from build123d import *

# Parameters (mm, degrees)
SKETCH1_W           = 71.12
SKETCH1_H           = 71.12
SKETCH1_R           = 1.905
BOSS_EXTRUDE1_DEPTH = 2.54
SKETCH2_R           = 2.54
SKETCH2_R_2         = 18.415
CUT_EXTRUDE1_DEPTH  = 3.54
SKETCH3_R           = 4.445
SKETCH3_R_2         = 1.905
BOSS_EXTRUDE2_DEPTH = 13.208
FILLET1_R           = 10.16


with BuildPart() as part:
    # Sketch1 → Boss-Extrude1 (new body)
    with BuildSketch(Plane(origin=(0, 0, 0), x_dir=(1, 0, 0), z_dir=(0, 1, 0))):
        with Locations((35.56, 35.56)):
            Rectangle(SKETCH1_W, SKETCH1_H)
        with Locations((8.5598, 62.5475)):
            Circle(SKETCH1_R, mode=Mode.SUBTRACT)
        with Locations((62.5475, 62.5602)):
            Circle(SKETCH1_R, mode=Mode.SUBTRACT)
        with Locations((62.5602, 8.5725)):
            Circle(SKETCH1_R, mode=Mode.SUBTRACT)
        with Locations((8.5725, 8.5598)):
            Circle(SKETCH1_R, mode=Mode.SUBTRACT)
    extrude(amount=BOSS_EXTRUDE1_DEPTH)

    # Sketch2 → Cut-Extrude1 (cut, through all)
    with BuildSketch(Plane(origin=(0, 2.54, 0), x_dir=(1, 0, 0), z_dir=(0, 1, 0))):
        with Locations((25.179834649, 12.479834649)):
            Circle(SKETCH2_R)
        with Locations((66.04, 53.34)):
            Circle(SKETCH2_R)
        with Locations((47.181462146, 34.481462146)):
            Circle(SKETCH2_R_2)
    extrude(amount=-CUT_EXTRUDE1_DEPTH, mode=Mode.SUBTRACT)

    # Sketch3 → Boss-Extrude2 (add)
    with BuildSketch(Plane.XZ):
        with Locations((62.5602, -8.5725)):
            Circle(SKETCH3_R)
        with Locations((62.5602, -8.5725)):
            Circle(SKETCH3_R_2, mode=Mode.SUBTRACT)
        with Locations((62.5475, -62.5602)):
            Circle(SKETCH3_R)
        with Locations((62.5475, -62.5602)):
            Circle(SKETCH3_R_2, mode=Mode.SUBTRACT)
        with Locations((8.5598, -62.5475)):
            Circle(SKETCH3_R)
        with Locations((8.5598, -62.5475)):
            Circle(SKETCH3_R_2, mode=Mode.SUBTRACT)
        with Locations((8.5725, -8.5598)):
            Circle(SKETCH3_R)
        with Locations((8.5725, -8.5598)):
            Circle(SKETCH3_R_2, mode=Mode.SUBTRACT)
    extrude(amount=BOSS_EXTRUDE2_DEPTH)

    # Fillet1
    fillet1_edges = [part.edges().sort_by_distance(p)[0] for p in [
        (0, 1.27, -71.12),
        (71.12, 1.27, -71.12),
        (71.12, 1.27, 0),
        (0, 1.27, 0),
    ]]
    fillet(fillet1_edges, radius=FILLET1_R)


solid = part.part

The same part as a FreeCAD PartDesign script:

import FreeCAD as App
import Part
import Sketcher
from FreeCAD import Vector
Q = App.Units.Quantity


def edges_at(feature, points):
    """Names of the edges that pass closest to the given points."""
    edges = feature.Shape.Edges
    near = lambda p: min(range(len(edges)), key=lambda i: edges[i].distToShape(Part.Vertex(*p))[0])
    return sorted({f"Edge{near(p) + 1}" for p in points})


def add_polygon(sketch, points):
    """Adds a closed chain of lines whose ends are joined by coincident constraints."""
    first, n = sketch.GeometryCount, len(points)
    for a, b in zip(points, points[1:] + points[:1]):
        sketch.addGeometry(Part.LineSegment(App.Vector(*a, 0), App.Vector(*b, 0)), False)
    for i in range(n):
        sketch.addConstraint(Sketcher.Constraint("Coincident", first + i, 2, first + (i + 1) % n, 1))

doc = App.newDocument("Part")
body = doc.addObject("PartDesign::Body", "Body")

# Sketch on XZ plane
sketch1 = doc.addObject("Sketcher::SketchObject", "Sketch")
body.addObject(sketch1)
sketch1.AttachmentSupport = (doc.XZ_Plane, [""])
sketch1.MapMode = "FlatFace"
add_polygon(sketch1, [(0, -71.1), (0, 0), (71.1, 0), (71.1, -71.1)])  # lines 0-3
sketch1.addGeometry(Part.Circle(Vector(8.6, -8.6, 0), Vector(0, 0, 1), 1.9), False)  # 4
sketch1.addGeometry(Part.Circle(Vector(62.6, -8.6, 0), Vector(0, 0, 1), 1.9), False)  # 5
sketch1.addGeometry(Part.Circle(Vector(8.6, -62.5, 0), Vector(0, 0, 1), 1.9), False)  # 6
sketch1.addGeometry(Part.Circle(Vector(62.5, -62.6, 0), Vector(0, 0, 1), 1.9), False)  # 7
sketch1.addConstraint([
    Sketcher.Constraint("Vertical", 0),
    Sketcher.Constraint("Horizontal", 1),
    Sketcher.Constraint("Vertical", 2),
    Sketcher.Constraint("Horizontal", 3),
    Sketcher.Constraint("Coincident", 0, 2, -1, 1),
    Sketcher.Constraint("Equal", 4, 5),
    Sketcher.Constraint("Equal", 5, 6),
    Sketcher.Constraint("Equal", 6, 7),
    Sketcher.Constraint("Equal", 3, 0),
    Sketcher.Constraint("Diameter", 4, Q("0.15 in")),
    Sketcher.Constraint("DistanceX", 1, 1, 1, 2, Q("2.8 in")),
    Sketcher.Constraint("DistanceY", 4, 3, -1, 1, Q("0.337 in")),
    Sketcher.Constraint("DistanceX", -1, 1, 5, 3, Q("2.463 in")),
    Sketcher.Constraint("DistanceX", -1, 1, 6, 3, Q("0.337 in")),
    Sketcher.Constraint("DistanceY", 7, 3, -1, 1, Q("2.463 in")),
    Sketcher.Constraint("DistanceY", 6, 3, 5, 3, Q("2.125 in")),
    Sketcher.Constraint("DistanceX", 4, 3, 7, 3, Q("2.125 in")),
    Sketcher.Constraint("DistanceX", -1, 1, 4, 3, Q("0.3375 in")),
    Sketcher.Constraint("DistanceY", 5, 3, -1, 1, Q("0.3375 in")),
])
pad1 = doc.addObject("PartDesign::Pad", "Pad")
body.addObject(pad1)
pad1.Profile = sketch1
pad1.Length = Q("0.1 in")
pad1.Reversed = True

# Sketch on XZ plane
sketch2 = doc.addObject("Sketcher::SketchObject", "Sketch001")
body.addObject(sketch2)
sketch2.AttachmentSupport = (doc.XZ_Plane, [""])
sketch2.MapMode = "FlatFace"
sketch2.AttachmentOffset = App.Placement(Vector(0, 0, -0.1 * 25.4), App.Rotation())
sketch2.addGeometry([
    Part.Circle(Vector(25.2, -12.5, 0), Vector(0, 0, 1), 2.5),
    Part.Circle(Vector(66, -53.3, 0), Vector(0, 0, 1), 2.5),
    Part.Circle(Vector(47.2, -34.5, 0), Vector(0, 0, 1), 18.4),
], False)
sketch2.addConstraint([
    Sketcher.Constraint("Equal", 0, 1),
    Sketcher.Constraint("Diameter", 0, Q("0.2 in")),
    Sketcher.Constraint("Diameter", 2, Q("1.45 in")),
    Sketcher.Constraint("DistanceX", -1, 1, 1, 3, Q("2.6 in")),
    Sketcher.Constraint("DistanceY", 1, 3, -1, 1, Q("2.1 in")),
    Sketcher.Constraint("DistanceX", -1, 1, 0, 3, 25.179835),
    Sketcher.Constraint("DistanceY", 0, 3, -1, 1, 12.479835),
    Sketcher.Constraint("DistanceX", -1, 1, 2, 3, 47.181462),
    Sketcher.Constraint("DistanceY", 2, 3, -1, 1, 34.481462),
])
pocket1 = doc.addObject("PartDesign::Pocket", "Pocket")
body.addObject(pocket1)
pocket1.Profile = sketch2
pocket1.Type = "ThroughAll"
pocket1.Reversed = True

# Sketch on XZ plane
sketch3 = doc.addObject("Sketcher::SketchObject", "Sketch002")
body.addObject(sketch3)
sketch3.AttachmentSupport = (doc.XZ_Plane, [""])
sketch3.MapMode = "FlatFace"
sketch3.addGeometry([
    Part.Circle(Vector(62.6, -8.6, 0), Vector(0, 0, 1), 4.4),  # 0
    Part.Circle(Vector(62.6, -8.6, 0), Vector(0, 0, 1), 1.9),  # 1
    Part.Circle(Vector(62.5, -62.6, 0), Vector(0, 0, 1), 4.4),  # 2
    Part.Circle(Vector(62.5, -62.6, 0), Vector(0, 0, 1), 1.9),  # 3
    Part.Circle(Vector(8.6, -62.5, 0), Vector(0, 0, 1), 4.4),  # 4
    Part.Circle(Vector(8.6, -62.5, 0), Vector(0, 0, 1), 1.9),  # 5
    Part.Circle(Vector(8.6, -8.6, 0), Vector(0, 0, 1), 4.4),  # 6
    Part.Circle(Vector(8.6, -8.6, 0), Vector(0, 0, 1), 1.9),  # 7
], False)
sketch3.addConstraint([
    Sketcher.Constraint("Coincident", 1, 3, 0, 3),
    Sketcher.Constraint("Coincident", 3, 3, 2, 3),
    Sketcher.Constraint("Coincident", 5, 3, 4, 3),
    Sketcher.Constraint("Coincident", 7, 3, 6, 3),
    Sketcher.Constraint("Equal", 0, 2),
    Sketcher.Constraint("Equal", 1, 3),
    Sketcher.Constraint("Equal", 2, 4),
    Sketcher.Constraint("Equal", 3, 5),
    Sketcher.Constraint("Equal", 4, 6),
    Sketcher.Constraint("Equal", 5, 7),
    Sketcher.Constraint("Diameter", 0, Q("0.35 in")),
    Sketcher.Constraint("Diameter", 1, Q("0.15 in")),
    Sketcher.Constraint("DistanceX", -1, 1, 0, 3, Q("2.463 in")),
    Sketcher.Constraint("DistanceY", 2, 3, -1, 1, Q("2.463 in")),
    Sketcher.Constraint("DistanceX", -1, 1, 4, 3, Q("0.337 in")),
    Sketcher.Constraint("DistanceY", 6, 3, -1, 1, Q("0.337 in")),
    Sketcher.Constraint("DistanceY", 4, 3, 0, 3, Q("2.125 in")),
    Sketcher.Constraint("DistanceX", 6, 3, 2, 3, Q("2.125 in")),
    Sketcher.Constraint("DistanceY", 0, 3, -1, 1, Q("0.3375 in")),
    Sketcher.Constraint("DistanceX", -1, 1, 2, 3, Q("2.4625 in")),
])
pad2 = doc.addObject("PartDesign::Pad", "Pad001")
body.addObject(pad2)
pad2.Profile = sketch3
pad2.Length = Q("0.52 in")
doc.recompute()

fillet = doc.addObject("PartDesign::Fillet", "Fillet")
body.addObject(fillet)
fillet.Base = (pad2, edges_at(pad2, [
    (0, 1.27, -71.12),
    (71.12, 1.27, -71.12),
    (71.12, 1.27, 0),
    (0, 1.27, 0),
]))
fillet.Radius = Q("0.4 in")

doc.recompute()
